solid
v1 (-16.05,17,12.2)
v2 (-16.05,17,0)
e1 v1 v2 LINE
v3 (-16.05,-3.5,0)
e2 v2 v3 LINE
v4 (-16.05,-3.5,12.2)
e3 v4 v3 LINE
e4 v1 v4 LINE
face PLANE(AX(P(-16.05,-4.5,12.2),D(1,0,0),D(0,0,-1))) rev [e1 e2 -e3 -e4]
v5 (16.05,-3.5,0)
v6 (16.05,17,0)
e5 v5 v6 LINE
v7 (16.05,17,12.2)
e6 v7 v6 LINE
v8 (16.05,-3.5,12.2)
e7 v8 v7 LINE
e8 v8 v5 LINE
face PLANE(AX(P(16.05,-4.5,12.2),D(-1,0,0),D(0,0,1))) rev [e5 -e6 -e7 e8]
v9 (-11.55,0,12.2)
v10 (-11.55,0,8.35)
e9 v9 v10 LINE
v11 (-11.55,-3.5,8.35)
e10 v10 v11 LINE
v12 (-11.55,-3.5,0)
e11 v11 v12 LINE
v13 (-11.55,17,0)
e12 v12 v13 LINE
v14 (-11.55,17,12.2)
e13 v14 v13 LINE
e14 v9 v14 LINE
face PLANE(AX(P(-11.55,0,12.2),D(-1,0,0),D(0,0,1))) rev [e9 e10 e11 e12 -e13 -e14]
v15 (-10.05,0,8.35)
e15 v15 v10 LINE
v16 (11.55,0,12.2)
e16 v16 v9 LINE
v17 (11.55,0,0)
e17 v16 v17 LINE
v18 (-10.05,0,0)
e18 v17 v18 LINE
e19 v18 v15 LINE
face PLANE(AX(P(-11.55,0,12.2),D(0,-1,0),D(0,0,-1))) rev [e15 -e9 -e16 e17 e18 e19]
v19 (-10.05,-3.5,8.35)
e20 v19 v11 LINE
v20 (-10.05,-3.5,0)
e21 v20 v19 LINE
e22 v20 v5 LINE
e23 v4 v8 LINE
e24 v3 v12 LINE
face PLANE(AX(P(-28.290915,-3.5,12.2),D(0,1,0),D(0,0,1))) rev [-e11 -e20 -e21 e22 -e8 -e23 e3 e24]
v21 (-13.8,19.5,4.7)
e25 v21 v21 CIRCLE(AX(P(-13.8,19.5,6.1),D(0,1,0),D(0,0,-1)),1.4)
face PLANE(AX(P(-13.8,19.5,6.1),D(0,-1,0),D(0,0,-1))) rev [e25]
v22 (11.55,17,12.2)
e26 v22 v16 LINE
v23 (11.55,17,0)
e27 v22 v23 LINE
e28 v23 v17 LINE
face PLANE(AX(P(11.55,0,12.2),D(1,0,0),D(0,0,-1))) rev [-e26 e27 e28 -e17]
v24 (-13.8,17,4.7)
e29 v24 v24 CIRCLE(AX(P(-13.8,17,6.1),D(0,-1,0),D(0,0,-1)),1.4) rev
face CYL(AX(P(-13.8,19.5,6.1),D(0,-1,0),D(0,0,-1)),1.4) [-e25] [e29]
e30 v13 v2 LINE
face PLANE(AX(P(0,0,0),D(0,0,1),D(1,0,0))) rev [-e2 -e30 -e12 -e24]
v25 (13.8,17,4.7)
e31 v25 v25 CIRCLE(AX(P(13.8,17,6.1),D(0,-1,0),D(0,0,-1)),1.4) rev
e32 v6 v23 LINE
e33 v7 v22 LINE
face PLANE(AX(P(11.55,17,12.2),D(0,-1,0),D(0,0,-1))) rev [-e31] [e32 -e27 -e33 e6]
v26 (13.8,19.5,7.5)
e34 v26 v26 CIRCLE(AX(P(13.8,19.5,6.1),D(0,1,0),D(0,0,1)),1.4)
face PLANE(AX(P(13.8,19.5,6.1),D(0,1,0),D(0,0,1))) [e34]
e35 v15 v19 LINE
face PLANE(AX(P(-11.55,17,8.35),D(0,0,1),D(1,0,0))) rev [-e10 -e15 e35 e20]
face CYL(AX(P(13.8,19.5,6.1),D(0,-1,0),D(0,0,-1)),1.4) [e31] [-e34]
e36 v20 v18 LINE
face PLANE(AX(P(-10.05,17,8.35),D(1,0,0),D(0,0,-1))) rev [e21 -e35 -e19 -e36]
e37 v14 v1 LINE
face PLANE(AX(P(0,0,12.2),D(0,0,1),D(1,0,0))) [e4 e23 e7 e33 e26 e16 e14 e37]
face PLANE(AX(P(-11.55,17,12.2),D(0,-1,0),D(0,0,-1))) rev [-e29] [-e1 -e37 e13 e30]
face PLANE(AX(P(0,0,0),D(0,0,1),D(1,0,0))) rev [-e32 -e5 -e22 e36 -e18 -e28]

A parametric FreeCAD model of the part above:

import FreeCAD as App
import Part
import Sketcher
from FreeCAD import Vector


def add_polygon(sketch, points):
    """Adds a closed chain of lines whose ends are joined by coincident constraints."""
    first, n = sketch.GeometryCount, len(points)
    for a, b in zip(points, points[1:] + points[:1]):
        sketch.addGeometry(Part.LineSegment(App.Vector(*a, 0), App.Vector(*b, 0)), False)
    for i in range(n):
        sketch.addConstraint(Sketcher.Constraint("Coincident", first + i, 2, first + (i + 1) % n, 1))

doc = App.newDocument("Part")
body = doc.addObject("PartDesign::Body", "Body")

# Sketch on XY plane
sketch1 = body.newObject("Sketcher::SketchObject", "Sketch")
sketch1.AttachmentSupport = (doc.getObject("XY_Plane"), [""])
sketch1.MapMode = "FlatFace"
add_polygon(sketch1, [(11.6, 0), (-11.6, 0), (-11.6, 17), (-16.1, 17), (-16.1, -4.5), (16.1, -4.5), (16.1, 17), (11.6, 17)])  # lines 0-7
sketch1.addConstraint([
    Sketcher.Constraint("Horizontal", 0),
    Sketcher.Constraint("Vertical", 1),
    Sketcher.Constraint("Horizontal", 2),
    Sketcher.Constraint("Vertical", 3),
    Sketcher.Constraint("Horizontal", 4),
    Sketcher.Constraint("Vertical", 5),
    Sketcher.Constraint("Horizontal", 6),
    Sketcher.Constraint("Vertical", 7),
    Sketcher.Constraint("Symmetric", 0, 2, 7, 2, -1, 1),
    Sketcher.Constraint("Symmetric", 2, 2, 5, 2, -2),
    Sketcher.Constraint("DistanceY", 1, 1, 1, 2, 17.0),
    Sketcher.Constraint("DistanceX", 0, 2, 0, 1, 23.1),
    Sketcher.Constraint("DistanceX", 2, 2, 2, 1, 4.5),
    Sketcher.Constraint("DistanceY", 3, 2, 3, 1, 21.5),
])
pad1 = body.newObject("PartDesign::Pad", "Pad")
pad1.Profile = sketch1
pad1.Length = 12.2

# Sketch on XZ plane
sketch2 = body.newObject("Sketcher::SketchObject", "Sketch001")
sketch2.AttachmentSupport = (doc.getObject("XZ_Plane"), [""])
sketch2.MapMode = "FlatFace"
sketch2.AttachmentOffset = App.Placement(Vector(0, 0, 4.5), App.Rotation())
add_polygon(sketch2, [(-11.6, 8.3), (-11.6, 0), (-10.1, 0), (-10.1, 8.3)])  # lines 0-3
sketch2.addConstraint([
    Sketcher.Constraint("Vertical", 0),
    Sketcher.Constraint("Horizontal", 1),
    Sketcher.Constraint("Vertical", 2),
    Sketcher.Constraint("Horizontal", 3),
    Sketcher.Constraint("PointOnObject", 0, 2, -1),
    Sketcher.Constraint("DistanceX", 1, 1, 1, 2, 1.5),
    Sketcher.Constraint("DistanceY", 0, 2, 0, 1, 8.35),
    Sketcher.Constraint("DistanceX", 0, 2, -1, 1, 11.55),
])
pocket1 = body.newObject("PartDesign::Pocket", "Pocket")
pocket1.Profile = sketch2
pocket1.Type = "ThroughAll"

# Sketch on XZ plane
sketch3 = body.newObject("Sketcher::SketchObject", "Sketch002")
sketch3.AttachmentSupport = (doc.getObject("XZ_Plane"), [""])
sketch3.MapMode = "FlatFace"
sketch3.AttachmentOffset = App.Placement(Vector(0, 0, -17), App.Rotation())
sketch3.addGeometry([
    Part.Circle(Vector(13.8, 6.1, 0), Vector(0, 0, 1), 1.4),
    Part.Circle(Vector(-13.8, 6.1, 0), Vector(0, 0, 1), 1.4),
], False)
sketch3.addConstraint([
    Sketcher.Constraint("Equal", 0, 1),
    Sketcher.Constraint("Symmetric", 0, 3, 1, 3, -2),
    Sketcher.Constraint("Diameter", 0, 2.8),
    Sketcher.Constraint("DistanceX", -1, 1, 0, 3, 13.8),
    Sketcher.Constraint("DistanceY", -1, 1, 0, 3, 6.1),
])
pad2 = body.newObject("PartDesign::Pad", "Pad001")
pad2.Profile = sketch3
pad2.Length = 2.5
pad2.Reversed = True

# Sketch on YZ plane
sketch4 = body.newObject("Sketcher::SketchObject", "Sketch003")
sketch4.AttachmentSupport = (doc.getObject("YZ_Plane"), [""])
sketch4.MapMode = "FlatFace"
sketch4.AttachmentOffset = App.Placement(Vector(0, 0, 16.05), App.Rotation())
add_polygon(sketch4, [(-3.5, 12.2), (-4.5, 12.2), (-4.5, 0), (-3.5, 0)])  # lines 0-3
sketch4.addConstraint([
    Sketcher.Constraint("Horizontal", 0),
    Sketcher.Constraint("Vertical", 1),
    Sketcher.Constraint("Horizontal", 2),
    Sketcher.Constraint("Vertical", 3),
    Sketcher.Constraint("PointOnObject", 1, 2, -1),
    Sketcher.Constraint("DistanceX", 0, 2, 0, 1, 1.0),
    Sketcher.Constraint("DistanceY", 1, 2, 1, 1, 12.2),
    Sketcher.Constraint("DistanceX", 0, 2, -1, 1, 4.5),
])
pocket2 = body.newObject("PartDesign::Pocket", "Pocket001")
pocket2.Profile = sketch4
pocket2.Type = "ThroughAll"
pocket2.Midplane = True

doc.recompute()
